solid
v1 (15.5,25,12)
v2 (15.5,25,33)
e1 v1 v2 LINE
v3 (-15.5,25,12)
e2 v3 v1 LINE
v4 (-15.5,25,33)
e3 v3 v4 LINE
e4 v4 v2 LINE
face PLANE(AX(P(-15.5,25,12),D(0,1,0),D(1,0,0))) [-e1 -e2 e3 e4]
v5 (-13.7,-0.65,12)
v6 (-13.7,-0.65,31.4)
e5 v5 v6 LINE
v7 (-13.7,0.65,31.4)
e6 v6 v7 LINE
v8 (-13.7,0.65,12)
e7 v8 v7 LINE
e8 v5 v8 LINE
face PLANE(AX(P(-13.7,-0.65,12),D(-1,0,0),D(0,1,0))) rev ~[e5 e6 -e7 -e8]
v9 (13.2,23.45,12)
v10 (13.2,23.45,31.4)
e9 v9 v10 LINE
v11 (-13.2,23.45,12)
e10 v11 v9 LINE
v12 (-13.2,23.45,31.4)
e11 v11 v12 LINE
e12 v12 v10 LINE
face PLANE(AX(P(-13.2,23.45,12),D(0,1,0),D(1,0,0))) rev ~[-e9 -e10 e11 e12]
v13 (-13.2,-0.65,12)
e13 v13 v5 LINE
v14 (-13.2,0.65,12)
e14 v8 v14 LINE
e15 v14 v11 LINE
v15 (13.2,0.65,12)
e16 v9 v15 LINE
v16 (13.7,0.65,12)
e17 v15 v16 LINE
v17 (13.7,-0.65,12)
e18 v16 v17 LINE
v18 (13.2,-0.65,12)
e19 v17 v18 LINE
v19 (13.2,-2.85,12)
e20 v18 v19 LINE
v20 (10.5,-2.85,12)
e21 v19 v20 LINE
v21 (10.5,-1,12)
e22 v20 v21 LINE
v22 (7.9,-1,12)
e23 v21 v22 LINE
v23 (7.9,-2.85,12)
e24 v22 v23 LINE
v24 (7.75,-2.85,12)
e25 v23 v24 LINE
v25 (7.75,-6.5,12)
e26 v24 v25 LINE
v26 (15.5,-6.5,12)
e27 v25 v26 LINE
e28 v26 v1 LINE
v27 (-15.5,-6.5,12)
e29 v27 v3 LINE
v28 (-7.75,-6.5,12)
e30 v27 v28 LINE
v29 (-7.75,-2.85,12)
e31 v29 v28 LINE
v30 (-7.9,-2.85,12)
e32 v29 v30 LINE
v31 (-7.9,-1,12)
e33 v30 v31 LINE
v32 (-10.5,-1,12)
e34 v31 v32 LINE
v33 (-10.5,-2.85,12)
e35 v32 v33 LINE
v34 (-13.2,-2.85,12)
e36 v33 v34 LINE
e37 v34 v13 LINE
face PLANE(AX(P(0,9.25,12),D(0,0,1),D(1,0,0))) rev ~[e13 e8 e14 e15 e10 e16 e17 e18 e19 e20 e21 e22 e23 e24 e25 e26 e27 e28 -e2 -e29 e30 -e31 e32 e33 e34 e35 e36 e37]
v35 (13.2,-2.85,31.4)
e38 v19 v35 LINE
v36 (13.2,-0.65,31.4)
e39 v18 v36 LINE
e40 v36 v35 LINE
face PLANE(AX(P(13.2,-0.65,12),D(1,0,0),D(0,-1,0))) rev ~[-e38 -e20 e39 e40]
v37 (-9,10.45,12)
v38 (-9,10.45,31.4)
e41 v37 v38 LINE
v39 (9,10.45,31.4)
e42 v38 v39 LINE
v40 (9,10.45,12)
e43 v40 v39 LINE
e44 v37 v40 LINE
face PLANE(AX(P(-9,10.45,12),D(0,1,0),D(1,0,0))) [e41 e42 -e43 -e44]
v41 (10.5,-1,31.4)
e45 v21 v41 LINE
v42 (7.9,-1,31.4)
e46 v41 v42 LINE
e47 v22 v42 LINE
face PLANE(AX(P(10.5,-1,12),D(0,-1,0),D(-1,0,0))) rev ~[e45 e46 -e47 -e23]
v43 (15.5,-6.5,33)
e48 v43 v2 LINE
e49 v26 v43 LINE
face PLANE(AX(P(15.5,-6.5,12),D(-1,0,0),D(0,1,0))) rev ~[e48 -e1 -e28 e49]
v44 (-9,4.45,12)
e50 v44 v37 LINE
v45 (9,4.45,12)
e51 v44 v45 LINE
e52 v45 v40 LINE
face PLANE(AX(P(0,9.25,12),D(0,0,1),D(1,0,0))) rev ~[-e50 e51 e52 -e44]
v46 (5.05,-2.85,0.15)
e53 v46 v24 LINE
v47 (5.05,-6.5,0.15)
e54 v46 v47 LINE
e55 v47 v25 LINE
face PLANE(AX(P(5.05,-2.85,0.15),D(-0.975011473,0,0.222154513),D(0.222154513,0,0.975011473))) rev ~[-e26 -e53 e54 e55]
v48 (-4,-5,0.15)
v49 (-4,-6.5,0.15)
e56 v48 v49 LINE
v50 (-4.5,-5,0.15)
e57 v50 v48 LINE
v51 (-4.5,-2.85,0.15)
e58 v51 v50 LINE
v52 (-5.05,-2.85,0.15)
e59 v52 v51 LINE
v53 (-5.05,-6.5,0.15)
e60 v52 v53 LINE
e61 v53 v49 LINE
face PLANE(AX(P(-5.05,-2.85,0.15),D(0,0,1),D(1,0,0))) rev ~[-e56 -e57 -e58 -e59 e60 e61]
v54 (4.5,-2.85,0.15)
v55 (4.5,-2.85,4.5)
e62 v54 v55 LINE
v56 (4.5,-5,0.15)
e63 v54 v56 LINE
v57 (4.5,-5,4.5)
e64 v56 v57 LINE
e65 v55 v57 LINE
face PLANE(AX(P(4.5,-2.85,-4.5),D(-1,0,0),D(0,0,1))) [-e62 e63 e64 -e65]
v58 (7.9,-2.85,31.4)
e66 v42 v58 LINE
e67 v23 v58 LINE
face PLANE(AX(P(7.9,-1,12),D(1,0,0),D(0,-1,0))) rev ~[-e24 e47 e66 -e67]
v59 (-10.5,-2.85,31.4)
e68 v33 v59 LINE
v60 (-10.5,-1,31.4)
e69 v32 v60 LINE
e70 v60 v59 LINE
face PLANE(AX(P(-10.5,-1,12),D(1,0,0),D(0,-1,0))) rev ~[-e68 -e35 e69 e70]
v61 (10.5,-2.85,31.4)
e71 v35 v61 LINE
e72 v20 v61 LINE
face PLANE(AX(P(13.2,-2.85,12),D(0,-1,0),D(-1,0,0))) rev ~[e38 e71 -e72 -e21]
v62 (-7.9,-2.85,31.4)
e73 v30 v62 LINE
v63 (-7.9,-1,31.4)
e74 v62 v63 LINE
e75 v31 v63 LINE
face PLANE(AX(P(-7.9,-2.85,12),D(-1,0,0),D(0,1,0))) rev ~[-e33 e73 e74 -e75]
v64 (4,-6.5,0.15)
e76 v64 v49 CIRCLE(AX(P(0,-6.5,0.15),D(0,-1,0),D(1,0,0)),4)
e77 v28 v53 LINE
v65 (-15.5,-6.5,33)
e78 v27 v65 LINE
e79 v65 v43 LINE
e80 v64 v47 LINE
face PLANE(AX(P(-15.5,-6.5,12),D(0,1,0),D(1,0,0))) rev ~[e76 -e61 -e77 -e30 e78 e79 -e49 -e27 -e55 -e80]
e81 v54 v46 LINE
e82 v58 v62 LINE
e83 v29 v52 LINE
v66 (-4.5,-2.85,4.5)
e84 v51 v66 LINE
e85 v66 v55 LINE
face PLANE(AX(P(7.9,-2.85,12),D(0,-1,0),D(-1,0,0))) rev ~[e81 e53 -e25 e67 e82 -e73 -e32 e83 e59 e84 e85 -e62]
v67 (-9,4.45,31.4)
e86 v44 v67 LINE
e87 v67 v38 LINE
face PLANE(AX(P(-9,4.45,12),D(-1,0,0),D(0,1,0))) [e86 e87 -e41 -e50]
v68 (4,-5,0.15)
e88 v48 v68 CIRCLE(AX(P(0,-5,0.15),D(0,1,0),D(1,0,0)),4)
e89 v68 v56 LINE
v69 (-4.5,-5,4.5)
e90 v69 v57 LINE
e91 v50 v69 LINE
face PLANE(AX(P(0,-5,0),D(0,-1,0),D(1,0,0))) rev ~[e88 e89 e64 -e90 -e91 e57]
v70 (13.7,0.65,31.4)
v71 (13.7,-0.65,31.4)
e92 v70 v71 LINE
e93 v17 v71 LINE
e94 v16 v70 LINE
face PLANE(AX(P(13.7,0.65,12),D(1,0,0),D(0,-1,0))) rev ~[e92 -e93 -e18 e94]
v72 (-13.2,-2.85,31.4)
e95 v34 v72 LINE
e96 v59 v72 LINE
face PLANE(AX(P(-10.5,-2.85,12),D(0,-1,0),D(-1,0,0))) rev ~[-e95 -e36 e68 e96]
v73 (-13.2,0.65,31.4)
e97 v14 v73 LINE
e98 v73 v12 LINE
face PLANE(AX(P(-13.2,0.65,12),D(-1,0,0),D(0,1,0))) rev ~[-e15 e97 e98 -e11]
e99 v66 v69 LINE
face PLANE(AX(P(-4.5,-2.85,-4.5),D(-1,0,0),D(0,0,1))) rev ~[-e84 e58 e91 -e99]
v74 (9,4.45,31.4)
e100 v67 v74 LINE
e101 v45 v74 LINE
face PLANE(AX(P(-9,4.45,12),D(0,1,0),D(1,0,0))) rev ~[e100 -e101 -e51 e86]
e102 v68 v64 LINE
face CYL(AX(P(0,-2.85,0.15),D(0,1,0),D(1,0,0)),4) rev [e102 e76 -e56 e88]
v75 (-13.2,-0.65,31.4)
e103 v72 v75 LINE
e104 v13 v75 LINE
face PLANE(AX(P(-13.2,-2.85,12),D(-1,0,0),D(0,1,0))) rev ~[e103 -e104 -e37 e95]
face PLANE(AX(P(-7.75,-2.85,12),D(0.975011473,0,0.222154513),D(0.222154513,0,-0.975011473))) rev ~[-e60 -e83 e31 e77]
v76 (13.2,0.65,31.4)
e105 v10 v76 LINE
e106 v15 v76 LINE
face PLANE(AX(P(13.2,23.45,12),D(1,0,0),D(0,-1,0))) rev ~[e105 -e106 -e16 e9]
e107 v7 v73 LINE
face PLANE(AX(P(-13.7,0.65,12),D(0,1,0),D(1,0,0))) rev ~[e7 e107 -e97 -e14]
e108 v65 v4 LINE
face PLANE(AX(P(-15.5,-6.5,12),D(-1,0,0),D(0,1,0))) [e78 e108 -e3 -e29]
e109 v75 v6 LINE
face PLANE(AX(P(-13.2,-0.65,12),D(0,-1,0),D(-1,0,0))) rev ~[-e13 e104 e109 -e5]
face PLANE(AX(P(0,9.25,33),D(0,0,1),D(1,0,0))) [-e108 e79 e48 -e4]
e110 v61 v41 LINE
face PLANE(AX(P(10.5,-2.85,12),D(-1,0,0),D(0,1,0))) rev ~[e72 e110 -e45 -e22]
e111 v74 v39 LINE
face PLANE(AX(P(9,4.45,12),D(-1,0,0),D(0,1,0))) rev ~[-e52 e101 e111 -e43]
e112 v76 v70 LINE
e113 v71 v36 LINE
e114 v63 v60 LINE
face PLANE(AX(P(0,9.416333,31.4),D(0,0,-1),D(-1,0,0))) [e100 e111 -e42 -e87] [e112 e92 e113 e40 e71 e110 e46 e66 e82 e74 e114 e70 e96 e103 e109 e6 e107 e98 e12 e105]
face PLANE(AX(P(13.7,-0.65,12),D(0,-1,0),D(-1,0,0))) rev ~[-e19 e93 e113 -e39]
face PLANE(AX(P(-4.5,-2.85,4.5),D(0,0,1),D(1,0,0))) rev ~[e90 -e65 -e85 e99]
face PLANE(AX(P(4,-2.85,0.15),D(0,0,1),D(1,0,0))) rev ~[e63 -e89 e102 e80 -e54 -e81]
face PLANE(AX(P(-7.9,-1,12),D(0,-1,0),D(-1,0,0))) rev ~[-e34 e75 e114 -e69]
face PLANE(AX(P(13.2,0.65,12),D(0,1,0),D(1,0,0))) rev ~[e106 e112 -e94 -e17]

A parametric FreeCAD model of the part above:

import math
import FreeCAD as App
import Part
import Sketcher
Q = App.Units.Quantity


def add_polygon(sketch, points):
    """Adds a closed chain of lines whose ends are joined by coincident constraints."""
    first, n = sketch.GeometryCount, len(points)
    for a, b in zip(points, points[1:] + points[:1]):
        sketch.addGeometry(Part.LineSegment(App.Vector(*a, 0), App.Vector(*b, 0)), False)
    for i in range(n):
        sketch.addConstraint(Sketcher.Constraint("Coincident", first + i, 2, first + (i + 1) % n, 1))

doc = App.newDocument("Part")
params = doc.addObject("Spreadsheet::Sheet", "Params")
for row, (alias, value) in enumerate([
    ("sketch1_width", "31 mm"),
    ("sketch1_height", "31.5 mm"),
    ("pad1_length", "21 mm"),
    ("sketch2_width", "18 mm"),
    ("sketch2_height", "6 mm"),
    ("sketch2_width2", "15.8 mm"),
    ("sketch2_width3", "2.6 mm"),
    ("sketch2_width4", "2.7 mm"),
    ("pocket1_length", "19.4 mm"),
    ("sketch3_radius", "4 mm"),
    ("sketch3_width", "15.5 mm"),
    ("sketch3_width2", "1.05 mm"),
    ("pad2_length", "3.65 mm"),
    ("sketch4_width", "9 mm"),
    ("pocket2_length", "2.15 mm"),
], start=1):
    params.set(f"A{row}", alias)
    params.set(f"B{row}", "=" + value)
    params.setAlias(f"B{row}", alias)

body = doc.addObject("PartDesign::Body", "Body")

# Sketch on XY plane
sketch1 = body.newObject("Sketcher::SketchObject", "Sketch")
sketch1.AttachmentSupport = (doc.getObject("XY_Plane"), [""])
sketch1.MapMode = "FlatFace"
add_polygon(sketch1, [(-16, 25), (-16, -6), (16, -6), (16, 25)])  # lines 0-3
sketch1.addConstraint([
    Sketcher.Constraint("Vertical", 0),
    Sketcher.Constraint("Horizontal", 1),
    Sketcher.Constraint("Vertical", 2),
    Sketcher.Constraint("Horizontal", 3),
    Sketcher.Constraint("DistanceX", 1, 1, 1, 2, Q("31 mm")),
    Sketcher.Constraint("DistanceY", 0, 2, 0, 1, Q("31.5 mm")),
    Sketcher.Constraint("DistanceY", -1, 1, 2, 2, Q("25 mm")),
    Sketcher.Constraint("DistanceX", 0, 2, -1, 1, Q("15.5 mm")),
])
sketch1.setExpression("Constraints[8]", "Params.sketch1_width")
sketch1.setExpression("Constraints[9]", "Params.sketch1_height")
pad1 = body.newObject("PartDesign::Pad", "Pad")
pad1.Profile = sketch1
pad1.setExpression("Length", "Params.pad1_length")

# Sketch on XY plane
sketch2 = body.newObject("Sketcher::SketchObject", "Sketch001")
sketch2.AttachmentSupport = (doc.getObject("XY_Plane"), [""])
sketch2.MapMode = "FlatFace"
add_polygon(sketch2, [(-7.9, -1), (-7.9, -2.9), (7.9, -2.9), (7.9, -1), (10.5, -1), (10.5, -2.9), (13.2, -2.9), (13.2, -0.7), (13.7, -0.7), (13.7, 0.7), (13.2, 0.7), (13.2, 23.4), (-13.2, 23.4), (-13.2, 0.7), (-13.7, 0.7), (-13.7, -0.7), (-13.2, -0.7), (-13.2, -2.9), (-10.5, -2.9), (-10.5, -1)])  # lines 0-19
add_polygon(sketch2, [(-9, 4.5), (-9, 10.4), (9, 10.4), (9, 4.5)])  # lines 20-23
sketch2.addConstraint([
    Sketcher.Constraint("Vertical", 0),
    Sketcher.Constraint("Horizontal", 1),
    Sketcher.Constraint("Vertical", 2),
    Sketcher.Constraint("Horizontal", 3),
    Sketcher.Constraint("Vertical", 4),
    Sketcher.Constraint("Horizontal", 5),
    Sketcher.Constraint("Vertical", 6),
    Sketcher.Constraint("Horizontal", 7),
    Sketcher.Constraint("Vertical", 8),
    Sketcher.Constraint("Horizontal", 9),
    Sketcher.Constraint("Vertical", 10),
    Sketcher.Constraint("Horizontal", 11),
    Sketcher.Constraint("Vertical", 12),
    Sketcher.Constraint("Horizontal", 13),
    Sketcher.Constraint("Vertical", 14),
    Sketcher.Constraint("Horizontal", 15),
    Sketcher.Constraint("Vertical", 16),
    Sketcher.Constraint("Horizontal", 17),
    Sketcher.Constraint("Vertical", 18),
    Sketcher.Constraint("Horizontal", 19),
    Sketcher.Constraint("Vertical", 20),
    Sketcher.Constraint("Horizontal", 21),
    Sketcher.Constraint("Vertical", 22),
    Sketcher.Constraint("Horizontal", 23),
    Sketcher.Constraint("Symmetric", 6, 2, 12, 2, -1, 1),
    Sketcher.Constraint("Symmetric", 8, 2, 14, 2, -1, 1),
    Sketcher.Constraint("Symmetric", 9, 2, 12, 2, -2),
    Sketcher.Constraint("Symmetric", 5, 2, 16, 2, -2),
    Sketcher.Constraint("Symmetric", 3, 2, 18, 2, -2),
    Sketcher.Constraint("Horizontal", 1, 2, 4, 2),
    Sketcher.Constraint("Equal", 3, 19),
    Sketcher.Constraint("DistanceX", 21, 1, 21, 2, Q("18 mm")),
    Sketcher.Constraint("DistanceY", 20, 1, 20, 2, Q("6 mm")),
    Sketcher.Constraint("DistanceX", 1, 1, 1, 2, Q("15.8 mm")),
    Sketcher.Constraint("DistanceX", 3, 1, 3, 2, Q("2.6 mm")),
    Sketcher.Constraint("DistanceX", 5, 1, 5, 2, Q("2.7 mm")),
    Sketcher.Constraint("DistanceX", 7, 1, 7, 2, Q("0.5 mm")),
    Sketcher.Constraint("DistanceY", 6, 1, 6, 2, Q("2.2 mm")),
    Sketcher.Constraint("DistanceY", 8, 1, 8, 2, Q("1.3 mm")),
    Sketcher.Constraint("DistanceY", 10, 1, 10, 2, Q("22.8 mm")),
    Sketcher.Constraint("DistanceY", 2, 2, -1, 1, Q("1 mm")),
    Sketcher.Constraint("DistanceX", 20, 2, -1, 1, Q("9 mm")),
    Sketcher.Constraint("DistanceY", 12, 2, 20, 2, Q("9.8 mm")),
])
sketch2.setExpression("Constraints[55]", "Params.sketch2_width")
sketch2.setExpression("Constraints[56]", "Params.sketch2_height")
sketch2.setExpression("Constraints[57]", "Params.sketch2_width2")
sketch2.setExpression("Constraints[58]", "Params.sketch2_width3")
sketch2.setExpression("Constraints[59]", "Params.sketch2_width4")
pocket1 = body.newObject("PartDesign::Pocket", "Pocket")
pocket1.Profile = sketch2
pocket1.setExpression("Length", "Params.pocket1_length")
pocket1.Reversed = True

# Sketch on XZ plane
sketch3 = body.newObject("Sketcher::SketchObject", "Sketch002")
sketch3.AttachmentSupport = (doc.getObject("XZ_Plane"), [""])
sketch3.MapMode = "FlatFace"
sketch3.AttachmentOffset = App.Placement(App.Vector(0, 0, 2.85), App.Rotation())
sketch3.addGeometry([
    Part.LineSegment(App.Vector(-7.8, 0, 0), App.Vector(-5, -11.8, 0)),  # 0
    Part.LineSegment(App.Vector(-5, -11.8, 0), App.Vector(-4, -11.8, 0)),  # 1
    Part.ArcOfCircle(Part.Circle(App.Vector(0, -11.8, 0), App.Vector(0, 0, 1), 4), math.radians(0), math.radians(180)),  # 2
    Part.LineSegment(App.Vector(4, -11.8, 0), App.Vector(5, -11.8, 0)),  # 3
    Part.LineSegment(App.Vector(5, -11.8, 0), App.Vector(7.8, 0, 0)),  # 4
    Part.LineSegment(App.Vector(7.8, 0, 0), App.Vector(-7.8, 0, 0)),  # 5
], False)
sketch3.addConstraint([
    Sketcher.Constraint("Coincident", 0, 2, 1, 1),
    Sketcher.Constraint("Coincident", 1, 2, 2, 2),
    Sketcher.Constraint("Coincident", 2, 1, 3, 1),
    Sketcher.Constraint("Coincident", 3, 2, 4, 1),
    Sketcher.Constraint("Coincident", 4, 2, 5, 1),
    Sketcher.Constraint("Coincident", 5, 2, 0, 1),
    Sketcher.Constraint("Horizontal", 1),
    Sketcher.Constraint("Horizontal", 3),
    Sketcher.Constraint("Horizontal", 5),
    Sketcher.Constraint("Symmetric", 4, 2, 5, 2, -1, 1),
    Sketcher.Constraint("Symmetric", 1, 2, 2, 1, -2),
    Sketcher.Constraint("Horizontal", 2, 3, 0, 2),
    Sketcher.Constraint("Equal", 1, 3),
    Sketcher.Constraint("Radius", 2, Q("4 mm")),
    Sketcher.Constraint("DistanceX", 5, 2, 5, 1, Q("15.5 mm")),
    Sketcher.Constraint("DistanceX", 1, 1, 1, 2, Q("1.05 mm")),
    Sketcher.Constraint("DistanceY", 2, 3, -1, 1, Q("11.85 mm")),
])
sketch3.setExpression("Constraints[13]", "Params.sketch3_radius")
sketch3.setExpression("Constraints[14]", "Params.sketch3_width")
sketch3.setExpression("Constraints[15]", "Params.sketch3_width2")
pad2 = body.newObject("PartDesign::Pad", "Pad001")
pad2.Profile = sketch3
pad2.setExpression("Length", "Params.pad2_length")

# Sketch on XZ plane
sketch4 = body.newObject("Sketcher::SketchObject", "Sketch003")
sketch4.AttachmentSupport = (doc.getObject("XZ_Plane"), [""])
sketch4.MapMode = "FlatFace"
sketch4.AttachmentOffset = App.Placement(App.Vector(0, 0, 2.85), App.Rotation())
add_polygon(sketch4, [(-4, -8), (-4, -16), (4, -16), (4, -8)])  # lines 0-3
sketch4.addConstraint([
    Sketcher.Constraint("Vertical", 0),
    Sketcher.Constraint("Horizontal", 1),
    Sketcher.Constraint("Vertical", 2),
    Sketcher.Constraint("Horizontal", 3),
    Sketcher.Constraint("Equal", 3, 0),
    Sketcher.Constraint("DistanceX", 1, 1, 1, 2, Q("9 mm")),
    Sketcher.Constraint("DistanceX", 0, 2, -1, 1, Q("4.5 mm")),
    Sketcher.Constraint("DistanceY", 0, 2, -1, 1, Q("16.5 mm")),
])
sketch4.setExpression("Constraints[9]", "Params.sketch4_width")
pocket2 = body.newObject("PartDesign::Pocket", "Pocket001")
pocket2.Profile = sketch4
pocket2.setExpression("Length", "Params.pocket2_length")
pocket2.Reversed = True
body2 = doc.addObject("PartDesign::Body", "Body001")
doc.recompute()

body.Placement = App.Placement(App.Vector(0, 0, 12), App.Rotation(App.Vector(0, 0, 1), 0))
boolean = body2.newObject("PartDesign::Boolean", "Boolean")
boolean.Type = "Fuse"
boolean.addObjects([body])

doc.recompute()
